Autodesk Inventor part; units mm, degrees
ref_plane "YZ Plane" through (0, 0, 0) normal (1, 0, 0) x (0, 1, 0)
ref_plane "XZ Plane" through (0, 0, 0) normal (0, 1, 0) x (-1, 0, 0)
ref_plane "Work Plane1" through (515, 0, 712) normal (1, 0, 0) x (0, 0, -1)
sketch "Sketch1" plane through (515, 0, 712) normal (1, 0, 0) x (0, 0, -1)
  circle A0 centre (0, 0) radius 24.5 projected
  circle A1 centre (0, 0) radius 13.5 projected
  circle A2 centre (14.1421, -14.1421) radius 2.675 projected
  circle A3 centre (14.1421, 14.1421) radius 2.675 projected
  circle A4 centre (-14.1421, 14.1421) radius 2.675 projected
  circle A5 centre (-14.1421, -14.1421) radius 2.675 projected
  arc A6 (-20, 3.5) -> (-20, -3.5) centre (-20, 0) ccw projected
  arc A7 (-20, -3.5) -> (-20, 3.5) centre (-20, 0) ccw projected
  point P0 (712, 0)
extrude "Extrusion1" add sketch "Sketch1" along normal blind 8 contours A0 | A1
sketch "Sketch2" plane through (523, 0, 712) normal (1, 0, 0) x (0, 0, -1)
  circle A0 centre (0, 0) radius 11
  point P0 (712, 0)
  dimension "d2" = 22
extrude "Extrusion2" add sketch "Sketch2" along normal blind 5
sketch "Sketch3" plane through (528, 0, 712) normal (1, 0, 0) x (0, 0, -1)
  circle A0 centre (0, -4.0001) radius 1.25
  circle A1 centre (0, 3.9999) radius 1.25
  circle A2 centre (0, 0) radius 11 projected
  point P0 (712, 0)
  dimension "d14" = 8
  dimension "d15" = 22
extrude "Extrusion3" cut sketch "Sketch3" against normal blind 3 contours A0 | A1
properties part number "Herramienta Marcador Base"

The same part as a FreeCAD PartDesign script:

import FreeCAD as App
import Part
import Sketcher

V = App.Vector

doc = App.newDocument("Part")
body = doc.addObject("PartDesign::Body", "Body")

# Sketch on YZ plane
sketch1 = doc.addObject("Sketcher::SketchObject", "Sketch")
body.addObject(sketch1)
sketch1.AttachmentSupport = (doc.YZ_Plane, [""])
sketch1.MapMode = "FlatFace"
sketch1.AttachmentOffset = App.Placement(V(0, 0, 515), App.Rotation())
sketch1.addGeometry([
    Part.Circle(V(0, 712, 0), V(0, 0, 1), 24.5),  # 0
    Part.Circle(V(-14.1421, 726.1421, 0), V(0, 0, 1), 2.675),  # 1
    Part.Circle(V(0, 732, 0), V(0, 0, 1), 3.5),  # 2
    Part.Circle(V(-14.1421, 697.8579, 0), V(0, 0, 1), 2.675),  # 3
    Part.Circle(V(14.1421, 726.1421, 0), V(0, 0, 1), 2.675),  # 4
    Part.Circle(V(14.1421, 697.8579, 0), V(0, 0, 1), 2.675),  # 5
], False)
sketch1.addConstraint([
    Sketcher.Constraint("Equal", 1, 3),
    Sketcher.Constraint("Equal", 3, 4),
    Sketcher.Constraint("Equal", 4, 5),
    Sketcher.Constraint("Symmetric", 1, 3, 4, 3, -2),
    Sketcher.Constraint("Symmetric", 3, 3, 5, 3, -2),
    Sketcher.Constraint("PointOnObject", 0, 3, -2),
    Sketcher.Constraint("PointOnObject", 2, 3, -2),
    Sketcher.Constraint("Vertical", 1, 3, 3, 3),
    Sketcher.Constraint("Diameter", 0, 49.0),
    Sketcher.Constraint("Diameter", 2, 7.0),
    Sketcher.Constraint("Diameter", 1, 5.35),
    Sketcher.Constraint("DistanceY", -1, 1, 0, 3, 712.0),
    Sketcher.Constraint("DistanceY", -1, 1, 2, 3, 732.0),
    Sketcher.Constraint("DistanceX", 1, 3, -1, 1, 14.142),
    Sketcher.Constraint("DistanceY", -1, 1, 1, 3, 726.142),
    Sketcher.Constraint("DistanceY", -1, 1, 3, 3, 697.858),
])
pad1 = doc.addObject("PartDesign::Pad", "Pad")
body.addObject(pad1)
pad1.Profile = sketch1
pad1.Length = 8

# Sketch on YZ plane
sketch2 = doc.addObject("Sketcher::SketchObject", "Sketch001")
body.addObject(sketch2)
sketch2.AttachmentSupport = (doc.YZ_Plane, [""])
sketch2.MapMode = "FlatFace"
sketch2.AttachmentOffset = App.Placement(V(0, 0, 523), App.Rotation())
sketch2.addGeometry(Part.Circle(V(0, 712, 0), V(0, 0, 1), 11), False)
sketch2.addConstraint([
    Sketcher.Constraint("PointOnObject", 0, 3, -2),
    Sketcher.Constraint("Diameter", 0, 22.0),
    Sketcher.Constraint("DistanceY", -1, 1, 0, 3, 712.0),
])
pad2 = doc.addObject("PartDesign::Pad", "Pad001")
body.addObject(pad2)
pad2.Profile = sketch2
pad2.Length = 5

# Sketch on YZ plane
sketch3 = doc.addObject("Sketcher::SketchObject", "Sketch002")
body.addObject(sketch3)
sketch3.AttachmentSupport = (doc.YZ_Plane, [""])
sketch3.MapMode = "FlatFace"
sketch3.AttachmentOffset = App.Placement(V(0, 0, 528), App.Rotation())
sketch3.addGeometry([
    Part.Circle(V(-4.0001, 712, 0), V(0, 0, 1), 1.25),
    Part.Circle(V(3.9999, 712, 0), V(0, 0, 1), 1.25),
], False)
sketch3.addConstraint([
    Sketcher.Constraint("Equal", 0, 1),
    Sketcher.Constraint("Symmetric", 0, 3, 1, 3, -2),
    Sketcher.Constraint("DistanceX", 0, 3, 1, 3, 8.0),
    Sketcher.Constraint("Diameter", 0, 2.5),
    Sketcher.Constraint("DistanceY", -1, 1, 0, 3, 712.0),
])
pocket1 = doc.addObject("PartDesign::Pocket", "Pocket")
body.addObject(pocket1)
pocket1.Profile = sketch3
pocket1.Length = 3

doc.recompute()
